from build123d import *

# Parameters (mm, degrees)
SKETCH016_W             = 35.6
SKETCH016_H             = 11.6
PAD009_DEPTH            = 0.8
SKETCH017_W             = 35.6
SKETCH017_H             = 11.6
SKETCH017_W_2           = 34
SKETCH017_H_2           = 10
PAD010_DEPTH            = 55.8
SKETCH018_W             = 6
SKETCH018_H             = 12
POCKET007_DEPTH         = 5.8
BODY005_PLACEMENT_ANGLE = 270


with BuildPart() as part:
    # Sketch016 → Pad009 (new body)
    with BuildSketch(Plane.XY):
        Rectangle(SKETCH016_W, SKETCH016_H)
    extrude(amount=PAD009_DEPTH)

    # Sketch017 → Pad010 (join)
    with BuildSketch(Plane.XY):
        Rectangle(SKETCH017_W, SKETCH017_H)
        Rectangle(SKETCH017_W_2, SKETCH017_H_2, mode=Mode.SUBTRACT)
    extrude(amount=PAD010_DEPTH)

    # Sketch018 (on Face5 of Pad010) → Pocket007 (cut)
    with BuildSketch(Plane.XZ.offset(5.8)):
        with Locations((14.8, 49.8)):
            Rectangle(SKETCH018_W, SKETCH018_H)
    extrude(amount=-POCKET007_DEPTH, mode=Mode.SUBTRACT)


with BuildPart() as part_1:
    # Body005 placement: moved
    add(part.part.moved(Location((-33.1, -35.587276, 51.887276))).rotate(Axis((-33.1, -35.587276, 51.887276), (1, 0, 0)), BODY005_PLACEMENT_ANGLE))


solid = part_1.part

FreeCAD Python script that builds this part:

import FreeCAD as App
import Part
import Sketcher
from FreeCAD import Vector

doc = App.newDocument("Part")
params = doc.addObject("Spreadsheet::Sheet", "Params")
for row, (alias, value) in enumerate([
    ("sketch1_width", "35.6 mm"),
    ("sketch1_height", "11.6 mm"),
    ("pad1_length", "0.8 mm"),
    ("sketch2_width", "34 mm"),
    ("sketch2_height", "10 mm"),
    ("sketch2_width2", "35.6 mm"),
    ("sketch2_height2", "11.6 mm"),
    ("pad2_length", "55.8 mm"),
    ("sketch3_width", "6 mm"),
    ("sketch3_height", "12 mm"),
    ("pocket1_length", "5.8 mm"),
], start=1):
    params.set(f"A{row}", alias)
    params.set(f"B{row}", "=" + value)
    params.setAlias(f"B{row}", alias)

body = doc.addObject("PartDesign::Body", "Body")

# Sketch on XY plane
sketch1 = body.newObject("Sketcher::SketchObject", "Sketch")
sketch1.AttachmentSupport = (doc.getObject("XY_Plane"), [""])
sketch1.MapMode = "FlatFace"
sketch1.addGeometry(Part.LineSegment(Vector(-18, 6, 0), Vector(-18, -6, 0)), False)
sketch1.addGeometry(Part.LineSegment(Vector(-18, -6, 0), Vector(18, -6, 0)), False)
sketch1.addGeometry(Part.LineSegment(Vector(18, -6, 0), Vector(18, 6, 0)), False)
sketch1.addGeometry(Part.LineSegment(Vector(18, 6, 0), Vector(-18, 6, 0)), False)
sketch1.addConstraint(Sketcher.Constraint("Coincident", 0, 2, 1, 1))
sketch1.addConstraint(Sketcher.Constraint("Coincident", 1, 2, 2, 1))
sketch1.addConstraint(Sketcher.Constraint("Coincident", 2, 2, 3, 1))
sketch1.addConstraint(Sketcher.Constraint("Coincident", 3, 2, 0, 1))
sketch1.addConstraint(Sketcher.Constraint("Vertical", 0))
sketch1.addConstraint(Sketcher.Constraint("Horizontal", 1))
sketch1.addConstraint(Sketcher.Constraint("Vertical", 2))
sketch1.addConstraint(Sketcher.Constraint("Horizontal", 3))
sketch1.addConstraint(Sketcher.Constraint("Symmetric", 0, 2, 2, 2, -1, 1))
sketch1.addConstraint(Sketcher.Constraint("DistanceX", 1, 1, 1, 2, 35.6))
sketch1.addConstraint(Sketcher.Constraint("DistanceY", 0, 2, 0, 1, 11.6))
sketch1.setExpression("Constraints[9]", "Params.sketch1_width")
sketch1.setExpression("Constraints[10]", "Params.sketch1_height")
pad1 = body.newObject("PartDesign::Pad", "Pad")
pad1.Profile = sketch1
pad1.setExpression("Length", "Params.pad1_length")

# Sketch on XY plane
sketch2 = body.newObject("Sketcher::SketchObject", "Sketch001")
sketch2.AttachmentSupport = (doc.getObject("XY_Plane"), [""])
sketch2.MapMode = "FlatFace"
sketch2.addGeometry(Part.LineSegment(Vector(-18, 6, 0), Vector(-18, -6, 0)), False)
sketch2.addGeometry(Part.LineSegment(Vector(-18, -6, 0), Vector(18, -6, 0)), False)
sketch2.addGeometry(Part.LineSegment(Vector(18, -6, 0), Vector(18, 6, 0)), False)
sketch2.addGeometry(Part.LineSegment(Vector(18, 6, 0), Vector(-18, 6, 0)), False)
sketch2.addGeometry(Part.LineSegment(Vector(17, -5, 0), Vector(-17, -5, 0)), False)
sketch2.addGeometry(Part.LineSegment(Vector(-17, -5, 0), Vector(-17, 5, 0)), False)
sketch2.addGeometry(Part.LineSegment(Vector(-17, 5, 0), Vector(17, 5, 0)), False)
sketch2.addGeometry(Part.LineSegment(Vector(17, 5, 0), Vector(17, -5, 0)), False)
sketch2.addConstraint(Sketcher.Constraint("Coincident", 0, 2, 1, 1))
sketch2.addConstraint(Sketcher.Constraint("Coincident", 1, 2, 2, 1))
sketch2.addConstraint(Sketcher.Constraint("Coincident", 2, 2, 3, 1))
sketch2.addConstraint(Sketcher.Constraint("Coincident", 3, 2, 0, 1))
sketch2.addConstraint(Sketcher.Constraint("Coincident", 4, 2, 5, 1))
sketch2.addConstraint(Sketcher.Constraint("Coincident", 5, 2, 6, 1))
sketch2.addConstraint(Sketcher.Constraint("Coincident", 6, 2, 7, 1))
sketch2.addConstraint(Sketcher.Constraint("Coincident", 7, 2, 4, 1))
sketch2.addConstraint(Sketcher.Constraint("Vertical", 0))
sketch2.addConstraint(Sketcher.Constraint("Horizontal", 1))
sketch2.addConstraint(Sketcher.Constraint("Vertical", 2))
sketch2.addConstraint(Sketcher.Constraint("Horizontal", 3))
sketch2.addConstraint(Sketcher.Constraint("Horizontal", 4))
sketch2.addConstraint(Sketcher.Constraint("Vertical", 5))
sketch2.addConstraint(Sketcher.Constraint("Horizontal", 6))
sketch2.addConstraint(Sketcher.Constraint("Vertical", 7))
sketch2.addConstraint(Sketcher.Constraint("Symmetric", 0, 2, 2, 2, -1, 1))
sketch2.addConstraint(Sketcher.Constraint("Symmetric", 4, 2, 6, 2, -1, 1))
sketch2.addConstraint(Sketcher.Constraint("DistanceX", 4, 2, 4, 1, 34.0))
sketch2.addConstraint(Sketcher.Constraint("DistanceY", 5, 1, 5, 2, 10.0))
sketch2.addConstraint(Sketcher.Constraint("DistanceX", 1, 1, 1, 2, 35.6))
sketch2.addConstraint(Sketcher.Constraint("DistanceY", 0, 2, 0, 1, 11.6))
sketch2.setExpression("Constraints[18]", "Params.sketch2_width")
sketch2.setExpression("Constraints[19]", "Params.sketch2_height")
sketch2.setExpression("Constraints[20]", "Params.sketch2_width2")
sketch2.setExpression("Constraints[21]", "Params.sketch2_height2")
pad2 = body.newObject("PartDesign::Pad", "Pad001")
pad2.Profile = sketch2
pad2.setExpression("Length", "Params.pad2_length")

# Sketch on XZ plane
sketch3 = body.newObject("Sketcher::SketchObject", "Sketch002")
sketch3.AttachmentSupport = (doc.getObject("XZ_Plane"), [""])
sketch3.MapMode = "FlatFace"
sketch3.AttachmentOffset = App.Placement(Vector(0, 0, 5.8), App.Rotation())
sketch3.addGeometry(Part.LineSegment(Vector(12, 56, 0), Vector(12, 44, 0)), False)
sketch3.addGeometry(Part.LineSegment(Vector(12, 44, 0), Vector(18, 44, 0)), False)
sketch3.addGeometry(Part.LineSegment(Vector(18, 44, 0), Vector(18, 56, 0)), False)
sketch3.addGeometry(Part.LineSegment(Vector(18, 56, 0), Vector(12, 56, 0)), False)
sketch3.addConstraint(Sketcher.Constraint("Coincident", 0, 2, 1, 1))
sketch3.addConstraint(Sketcher.Constraint("Coincident", 1, 2, 2, 1))
sketch3.addConstraint(Sketcher.Constraint("Coincident", 2, 2, 3, 1))
sketch3.addConstraint(Sketcher.Constraint("Coincident", 3, 2, 0, 1))
sketch3.addConstraint(Sketcher.Constraint("Vertical", 0))
sketch3.addConstraint(Sketcher.Constraint("Horizontal", 1))
sketch3.addConstraint(Sketcher.Constraint("Vertical", 2))
sketch3.addConstraint(Sketcher.Constraint("Horizontal", 3))
sketch3.addConstraint(Sketcher.Constraint("DistanceX", 1, 1, 1, 2, 6.0))
sketch3.addConstraint(Sketcher.Constraint("DistanceY", 0, 2, 0, 1, 12.0))
sketch3.addConstraint(Sketcher.Constraint("DistanceX", -1, 1, 0, 2, 11.8))
sketch3.addConstraint(Sketcher.Constraint("DistanceY", -1, 1, 0, 2, 43.8))
sketch3.setExpression("Constraints[8]", "Params.sketch3_width")
sketch3.setExpression("Constraints[9]", "Params.sketch3_height")
pocket1 = body.newObject("PartDesign::Pocket", "Pocket")
pocket1.Profile = sketch3
pocket1.setExpression("Length", "Params.pocket1_length")
body2 = doc.addObject("PartDesign::Body", "Body001")
doc.recompute()

body.Placement = App.Placement(Vector(-33.1, -35.587276, 51.887276), App.Rotation(Vector(1, 0, 0), 270))
boolean = body2.newObject("PartDesign::Boolean", "Boolean")
boolean.Type = "Fuse"
boolean.addObjects([body])

doc.recompute()
